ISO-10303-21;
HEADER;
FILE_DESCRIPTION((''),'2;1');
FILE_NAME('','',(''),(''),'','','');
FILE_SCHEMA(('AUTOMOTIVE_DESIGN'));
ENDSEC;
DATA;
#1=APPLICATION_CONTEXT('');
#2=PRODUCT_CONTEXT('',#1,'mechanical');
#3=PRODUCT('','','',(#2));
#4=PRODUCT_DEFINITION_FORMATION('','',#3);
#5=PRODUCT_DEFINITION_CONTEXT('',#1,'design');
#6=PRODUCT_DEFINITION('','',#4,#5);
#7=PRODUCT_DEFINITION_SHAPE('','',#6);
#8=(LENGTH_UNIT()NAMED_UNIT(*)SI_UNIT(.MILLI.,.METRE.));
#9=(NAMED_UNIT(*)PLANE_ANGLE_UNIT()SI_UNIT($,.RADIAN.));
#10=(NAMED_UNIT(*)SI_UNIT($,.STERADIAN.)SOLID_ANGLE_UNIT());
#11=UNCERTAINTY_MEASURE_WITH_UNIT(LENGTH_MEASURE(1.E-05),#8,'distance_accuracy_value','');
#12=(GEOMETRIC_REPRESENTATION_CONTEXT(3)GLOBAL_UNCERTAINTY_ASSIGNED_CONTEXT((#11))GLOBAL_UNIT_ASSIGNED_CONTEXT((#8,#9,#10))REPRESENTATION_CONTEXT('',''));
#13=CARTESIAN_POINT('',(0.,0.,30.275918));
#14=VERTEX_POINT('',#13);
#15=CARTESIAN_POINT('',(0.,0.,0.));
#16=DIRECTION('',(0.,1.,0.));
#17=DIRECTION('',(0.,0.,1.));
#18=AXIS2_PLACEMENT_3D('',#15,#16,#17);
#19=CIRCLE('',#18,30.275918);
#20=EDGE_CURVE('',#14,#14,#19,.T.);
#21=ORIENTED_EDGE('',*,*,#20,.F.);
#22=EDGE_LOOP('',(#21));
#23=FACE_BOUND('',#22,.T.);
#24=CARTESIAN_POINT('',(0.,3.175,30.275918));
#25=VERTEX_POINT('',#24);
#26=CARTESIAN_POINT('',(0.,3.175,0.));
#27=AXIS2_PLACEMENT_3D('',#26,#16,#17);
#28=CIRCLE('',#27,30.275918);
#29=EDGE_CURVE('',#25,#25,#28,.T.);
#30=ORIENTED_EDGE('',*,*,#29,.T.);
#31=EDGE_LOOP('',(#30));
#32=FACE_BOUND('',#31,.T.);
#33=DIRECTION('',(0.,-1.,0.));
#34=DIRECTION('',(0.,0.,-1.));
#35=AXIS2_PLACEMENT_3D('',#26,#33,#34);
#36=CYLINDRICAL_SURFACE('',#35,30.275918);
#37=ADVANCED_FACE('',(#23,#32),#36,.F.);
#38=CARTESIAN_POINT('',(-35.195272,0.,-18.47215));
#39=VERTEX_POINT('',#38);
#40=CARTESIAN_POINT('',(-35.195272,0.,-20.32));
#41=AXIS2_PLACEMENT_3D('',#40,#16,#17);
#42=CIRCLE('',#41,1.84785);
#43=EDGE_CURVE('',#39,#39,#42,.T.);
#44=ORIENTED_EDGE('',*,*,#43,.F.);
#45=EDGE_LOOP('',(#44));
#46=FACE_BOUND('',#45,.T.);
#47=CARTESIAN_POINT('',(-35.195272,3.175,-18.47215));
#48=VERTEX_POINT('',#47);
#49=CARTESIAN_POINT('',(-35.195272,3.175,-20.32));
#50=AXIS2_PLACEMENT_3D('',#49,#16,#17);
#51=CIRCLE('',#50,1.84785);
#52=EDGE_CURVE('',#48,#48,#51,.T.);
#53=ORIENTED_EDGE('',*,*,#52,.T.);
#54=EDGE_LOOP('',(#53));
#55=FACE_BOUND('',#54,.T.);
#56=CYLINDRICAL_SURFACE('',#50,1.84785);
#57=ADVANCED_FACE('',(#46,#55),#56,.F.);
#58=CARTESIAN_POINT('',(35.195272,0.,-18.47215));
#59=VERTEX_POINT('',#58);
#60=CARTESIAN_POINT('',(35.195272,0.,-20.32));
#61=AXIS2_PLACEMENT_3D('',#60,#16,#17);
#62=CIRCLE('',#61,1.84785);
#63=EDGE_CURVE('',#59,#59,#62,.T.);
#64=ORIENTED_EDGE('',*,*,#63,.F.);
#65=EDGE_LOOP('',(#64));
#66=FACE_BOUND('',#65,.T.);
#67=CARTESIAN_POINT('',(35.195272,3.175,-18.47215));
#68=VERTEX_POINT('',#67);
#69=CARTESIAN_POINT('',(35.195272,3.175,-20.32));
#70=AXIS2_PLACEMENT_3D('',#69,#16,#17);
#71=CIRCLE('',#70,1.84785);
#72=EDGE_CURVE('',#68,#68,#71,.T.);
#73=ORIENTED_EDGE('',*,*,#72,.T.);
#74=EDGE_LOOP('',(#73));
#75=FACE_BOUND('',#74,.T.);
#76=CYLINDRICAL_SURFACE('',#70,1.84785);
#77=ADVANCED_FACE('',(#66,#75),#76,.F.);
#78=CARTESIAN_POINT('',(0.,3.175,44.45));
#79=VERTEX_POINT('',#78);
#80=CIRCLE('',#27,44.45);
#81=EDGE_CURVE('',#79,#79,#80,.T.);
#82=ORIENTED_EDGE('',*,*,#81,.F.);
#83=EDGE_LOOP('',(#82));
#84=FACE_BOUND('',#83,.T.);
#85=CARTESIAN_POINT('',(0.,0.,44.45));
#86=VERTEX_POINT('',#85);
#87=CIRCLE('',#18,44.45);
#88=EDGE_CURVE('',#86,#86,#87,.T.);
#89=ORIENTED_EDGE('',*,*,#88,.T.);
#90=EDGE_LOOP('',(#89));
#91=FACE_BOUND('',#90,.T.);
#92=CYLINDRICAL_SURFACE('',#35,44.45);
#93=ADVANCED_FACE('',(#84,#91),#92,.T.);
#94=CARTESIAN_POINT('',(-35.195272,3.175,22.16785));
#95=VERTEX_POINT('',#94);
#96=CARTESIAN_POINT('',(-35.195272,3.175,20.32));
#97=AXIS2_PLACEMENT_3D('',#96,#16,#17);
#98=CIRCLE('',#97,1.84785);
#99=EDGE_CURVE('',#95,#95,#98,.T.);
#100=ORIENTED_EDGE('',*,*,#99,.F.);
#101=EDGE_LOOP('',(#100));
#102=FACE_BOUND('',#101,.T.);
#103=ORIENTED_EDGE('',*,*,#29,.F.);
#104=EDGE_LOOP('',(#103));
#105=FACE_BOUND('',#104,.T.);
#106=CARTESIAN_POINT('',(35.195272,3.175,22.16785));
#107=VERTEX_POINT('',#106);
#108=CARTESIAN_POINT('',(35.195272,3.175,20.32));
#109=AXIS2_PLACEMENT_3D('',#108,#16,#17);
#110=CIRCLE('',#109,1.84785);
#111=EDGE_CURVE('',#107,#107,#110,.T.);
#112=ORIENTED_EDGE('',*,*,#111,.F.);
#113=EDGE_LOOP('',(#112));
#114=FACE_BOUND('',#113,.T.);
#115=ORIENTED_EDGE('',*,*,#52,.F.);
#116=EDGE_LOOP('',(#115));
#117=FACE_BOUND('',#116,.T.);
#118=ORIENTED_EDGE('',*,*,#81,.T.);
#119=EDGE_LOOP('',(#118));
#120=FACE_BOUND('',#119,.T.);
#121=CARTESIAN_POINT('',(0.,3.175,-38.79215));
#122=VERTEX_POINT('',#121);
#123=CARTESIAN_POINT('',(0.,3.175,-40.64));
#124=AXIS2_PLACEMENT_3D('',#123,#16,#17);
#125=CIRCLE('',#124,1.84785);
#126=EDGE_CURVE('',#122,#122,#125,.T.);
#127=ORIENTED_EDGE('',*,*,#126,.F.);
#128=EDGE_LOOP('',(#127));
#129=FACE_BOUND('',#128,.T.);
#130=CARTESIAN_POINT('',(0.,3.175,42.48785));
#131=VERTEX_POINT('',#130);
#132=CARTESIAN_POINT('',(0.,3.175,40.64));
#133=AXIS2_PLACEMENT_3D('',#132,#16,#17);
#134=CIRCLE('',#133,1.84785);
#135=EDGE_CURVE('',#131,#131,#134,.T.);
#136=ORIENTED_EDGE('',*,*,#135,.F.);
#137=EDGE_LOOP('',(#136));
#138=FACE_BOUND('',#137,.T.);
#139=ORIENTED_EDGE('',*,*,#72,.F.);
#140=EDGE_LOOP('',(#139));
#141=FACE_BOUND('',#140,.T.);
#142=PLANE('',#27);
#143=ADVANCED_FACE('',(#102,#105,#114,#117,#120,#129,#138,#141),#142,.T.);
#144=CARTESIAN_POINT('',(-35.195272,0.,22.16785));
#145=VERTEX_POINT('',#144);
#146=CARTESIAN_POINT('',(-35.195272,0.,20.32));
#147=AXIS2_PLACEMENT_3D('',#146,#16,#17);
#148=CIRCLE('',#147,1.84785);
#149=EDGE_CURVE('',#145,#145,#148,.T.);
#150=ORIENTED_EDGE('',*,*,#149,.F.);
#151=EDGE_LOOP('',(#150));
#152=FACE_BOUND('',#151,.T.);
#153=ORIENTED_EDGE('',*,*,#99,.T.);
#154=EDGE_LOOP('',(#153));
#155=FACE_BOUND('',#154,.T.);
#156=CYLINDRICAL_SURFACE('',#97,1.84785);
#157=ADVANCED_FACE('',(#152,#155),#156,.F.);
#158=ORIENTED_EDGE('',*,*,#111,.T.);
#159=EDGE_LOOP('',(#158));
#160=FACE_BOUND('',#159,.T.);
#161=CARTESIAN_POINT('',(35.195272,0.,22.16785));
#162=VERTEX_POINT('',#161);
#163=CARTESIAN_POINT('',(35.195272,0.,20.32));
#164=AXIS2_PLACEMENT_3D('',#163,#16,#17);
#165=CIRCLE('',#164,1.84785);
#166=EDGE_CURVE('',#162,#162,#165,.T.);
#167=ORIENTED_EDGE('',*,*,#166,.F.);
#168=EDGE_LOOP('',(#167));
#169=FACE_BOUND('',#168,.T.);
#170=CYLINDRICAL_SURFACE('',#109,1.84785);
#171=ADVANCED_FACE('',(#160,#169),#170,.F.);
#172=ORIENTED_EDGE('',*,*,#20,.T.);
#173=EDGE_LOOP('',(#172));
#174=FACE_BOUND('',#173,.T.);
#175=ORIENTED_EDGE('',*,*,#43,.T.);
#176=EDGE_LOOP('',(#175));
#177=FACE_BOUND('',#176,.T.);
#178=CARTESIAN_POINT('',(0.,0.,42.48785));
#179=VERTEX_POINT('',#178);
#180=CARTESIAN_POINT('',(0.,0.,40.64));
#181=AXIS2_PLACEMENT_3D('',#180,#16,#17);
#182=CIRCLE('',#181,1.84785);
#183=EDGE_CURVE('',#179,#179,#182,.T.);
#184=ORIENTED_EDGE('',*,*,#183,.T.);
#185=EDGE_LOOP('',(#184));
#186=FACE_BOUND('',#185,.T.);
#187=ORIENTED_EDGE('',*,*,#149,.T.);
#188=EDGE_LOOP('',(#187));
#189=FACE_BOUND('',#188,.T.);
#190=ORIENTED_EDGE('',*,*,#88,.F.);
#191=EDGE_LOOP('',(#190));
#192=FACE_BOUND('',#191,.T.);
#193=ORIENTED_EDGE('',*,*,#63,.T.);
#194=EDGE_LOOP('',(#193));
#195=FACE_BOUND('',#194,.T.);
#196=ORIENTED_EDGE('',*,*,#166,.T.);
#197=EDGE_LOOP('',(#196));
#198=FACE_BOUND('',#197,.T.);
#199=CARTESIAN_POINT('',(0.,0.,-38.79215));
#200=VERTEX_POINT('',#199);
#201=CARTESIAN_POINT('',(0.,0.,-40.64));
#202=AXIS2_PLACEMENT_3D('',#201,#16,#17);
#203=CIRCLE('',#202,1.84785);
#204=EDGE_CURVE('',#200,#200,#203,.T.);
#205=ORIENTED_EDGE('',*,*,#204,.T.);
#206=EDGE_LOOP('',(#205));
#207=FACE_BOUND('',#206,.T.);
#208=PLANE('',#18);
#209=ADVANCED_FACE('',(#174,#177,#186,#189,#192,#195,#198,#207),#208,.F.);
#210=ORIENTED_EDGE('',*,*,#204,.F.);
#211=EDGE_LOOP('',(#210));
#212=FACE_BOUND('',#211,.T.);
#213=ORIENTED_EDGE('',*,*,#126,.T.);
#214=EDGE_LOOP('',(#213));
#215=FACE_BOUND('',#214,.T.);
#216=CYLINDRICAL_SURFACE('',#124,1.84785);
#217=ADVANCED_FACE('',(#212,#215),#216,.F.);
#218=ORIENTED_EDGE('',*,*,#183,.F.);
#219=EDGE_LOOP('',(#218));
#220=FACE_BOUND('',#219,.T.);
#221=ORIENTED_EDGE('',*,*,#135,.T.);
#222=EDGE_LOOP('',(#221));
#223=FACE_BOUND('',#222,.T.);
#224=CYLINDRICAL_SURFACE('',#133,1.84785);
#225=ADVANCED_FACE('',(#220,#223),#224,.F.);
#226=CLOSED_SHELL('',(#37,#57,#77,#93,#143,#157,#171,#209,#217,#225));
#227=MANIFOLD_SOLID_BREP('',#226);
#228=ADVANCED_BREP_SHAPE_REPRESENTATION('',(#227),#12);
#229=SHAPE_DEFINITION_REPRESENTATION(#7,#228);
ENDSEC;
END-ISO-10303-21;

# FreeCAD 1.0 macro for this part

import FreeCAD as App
import Part
import Sketcher

V = App.Vector
Q = App.Units.Quantity

doc = App.newDocument("Part")
params = doc.addObject("Spreadsheet::Sheet", "Params")
for row, (alias, value) in enumerate([
    ("sketch1_diameter", "3.5 in"),
    ("pad1_length", "0.125 in"),
    ("hole_diameter", "0.1455 in"),
    ("hole_depth", "3.176 mm"),
], start=1):
    params.set(f"A{row}", alias)
    params.set(f"B{row}", "=" + value)
    params.setAlias(f"B{row}", alias)

body = doc.addObject("PartDesign::Body", "Body")

# Sketch on XZ plane
sketch1 = body.newObject("Sketcher::SketchObject", "Sketch")
sketch1.AttachmentSupport = (doc.getObject("XZ_Plane"), [""])
sketch1.MapMode = "FlatFace"
sketch1.addGeometry(Part.Circle(V(0, 0, 0), V(0, 0, 1), 44), False)
sketch1.addGeometry(Part.Circle(V(0, 0, 0), V(0, 0, 1), 30), False)
sketch1.addConstraint(Sketcher.Constraint("Coincident", 0, 3, -1, 1))
sketch1.addConstraint(Sketcher.Constraint("Coincident", 1, 3, -1, 1))
sketch1.addConstraint(Sketcher.Constraint("Diameter", 0, Q("3.5 in")))
sketch1.addConstraint(Sketcher.Constraint("Diameter", 1, 60.551835))
sketch1.setExpression("Constraints[2]", "Params.sketch1_diameter")
pad1 = body.newObject("PartDesign::Pad", "Pad")
pad1.Profile = sketch1
pad1.setExpression("Length", "Params.pad1_length")
pad1.Reversed = True

# Sketch on XZ plane
sketch2 = body.newObject("Sketcher::SketchObject", "Sketch001")
sketch2.AttachmentSupport = (doc.getObject("XZ_Plane"), [""])
sketch2.MapMode = "FlatFace"
sketch2.AttachmentOffset = App.Placement(V(0, 0, -0.125 * 25.4), App.Rotation())
sketch2.addGeometry(Part.Circle(V(0, -40.6, 0), V(0, 0, 1), 1.8), False)
sketch2.addConstraint(Sketcher.Constraint("PointOnObject", 0, 3, -2))
sketch2.addConstraint(Sketcher.Constraint("Diameter", 0, Q("0.1455 in")))
sketch2.addConstraint(Sketcher.Constraint("DistanceY", 0, 3, -1, 1, Q("1.6 in")))
doc.recompute()
hole = body.newObject("PartDesign::Hole", "Hole")
hole.Profile = sketch2
hole.ThreadType = "None"
hole.setExpression("Diameter", "Params.hole_diameter")
hole.DepthType = "Dimension"
hole.setExpression("Depth", "Params.hole_depth")
hole.DrillPoint = "Flat"
hole.Reversed = True
doc.recompute()

polarpattern = body.newObject("PartDesign::PolarPattern", "PolarPattern")
polarpattern.Originals = [hole]
polarpattern.Axis = (doc.getObject("Y_Axis"), [""])
polarpattern.Angle = 360
polarpattern.Occurrences = 6
body.Tip = polarpattern

doc.recompute()
